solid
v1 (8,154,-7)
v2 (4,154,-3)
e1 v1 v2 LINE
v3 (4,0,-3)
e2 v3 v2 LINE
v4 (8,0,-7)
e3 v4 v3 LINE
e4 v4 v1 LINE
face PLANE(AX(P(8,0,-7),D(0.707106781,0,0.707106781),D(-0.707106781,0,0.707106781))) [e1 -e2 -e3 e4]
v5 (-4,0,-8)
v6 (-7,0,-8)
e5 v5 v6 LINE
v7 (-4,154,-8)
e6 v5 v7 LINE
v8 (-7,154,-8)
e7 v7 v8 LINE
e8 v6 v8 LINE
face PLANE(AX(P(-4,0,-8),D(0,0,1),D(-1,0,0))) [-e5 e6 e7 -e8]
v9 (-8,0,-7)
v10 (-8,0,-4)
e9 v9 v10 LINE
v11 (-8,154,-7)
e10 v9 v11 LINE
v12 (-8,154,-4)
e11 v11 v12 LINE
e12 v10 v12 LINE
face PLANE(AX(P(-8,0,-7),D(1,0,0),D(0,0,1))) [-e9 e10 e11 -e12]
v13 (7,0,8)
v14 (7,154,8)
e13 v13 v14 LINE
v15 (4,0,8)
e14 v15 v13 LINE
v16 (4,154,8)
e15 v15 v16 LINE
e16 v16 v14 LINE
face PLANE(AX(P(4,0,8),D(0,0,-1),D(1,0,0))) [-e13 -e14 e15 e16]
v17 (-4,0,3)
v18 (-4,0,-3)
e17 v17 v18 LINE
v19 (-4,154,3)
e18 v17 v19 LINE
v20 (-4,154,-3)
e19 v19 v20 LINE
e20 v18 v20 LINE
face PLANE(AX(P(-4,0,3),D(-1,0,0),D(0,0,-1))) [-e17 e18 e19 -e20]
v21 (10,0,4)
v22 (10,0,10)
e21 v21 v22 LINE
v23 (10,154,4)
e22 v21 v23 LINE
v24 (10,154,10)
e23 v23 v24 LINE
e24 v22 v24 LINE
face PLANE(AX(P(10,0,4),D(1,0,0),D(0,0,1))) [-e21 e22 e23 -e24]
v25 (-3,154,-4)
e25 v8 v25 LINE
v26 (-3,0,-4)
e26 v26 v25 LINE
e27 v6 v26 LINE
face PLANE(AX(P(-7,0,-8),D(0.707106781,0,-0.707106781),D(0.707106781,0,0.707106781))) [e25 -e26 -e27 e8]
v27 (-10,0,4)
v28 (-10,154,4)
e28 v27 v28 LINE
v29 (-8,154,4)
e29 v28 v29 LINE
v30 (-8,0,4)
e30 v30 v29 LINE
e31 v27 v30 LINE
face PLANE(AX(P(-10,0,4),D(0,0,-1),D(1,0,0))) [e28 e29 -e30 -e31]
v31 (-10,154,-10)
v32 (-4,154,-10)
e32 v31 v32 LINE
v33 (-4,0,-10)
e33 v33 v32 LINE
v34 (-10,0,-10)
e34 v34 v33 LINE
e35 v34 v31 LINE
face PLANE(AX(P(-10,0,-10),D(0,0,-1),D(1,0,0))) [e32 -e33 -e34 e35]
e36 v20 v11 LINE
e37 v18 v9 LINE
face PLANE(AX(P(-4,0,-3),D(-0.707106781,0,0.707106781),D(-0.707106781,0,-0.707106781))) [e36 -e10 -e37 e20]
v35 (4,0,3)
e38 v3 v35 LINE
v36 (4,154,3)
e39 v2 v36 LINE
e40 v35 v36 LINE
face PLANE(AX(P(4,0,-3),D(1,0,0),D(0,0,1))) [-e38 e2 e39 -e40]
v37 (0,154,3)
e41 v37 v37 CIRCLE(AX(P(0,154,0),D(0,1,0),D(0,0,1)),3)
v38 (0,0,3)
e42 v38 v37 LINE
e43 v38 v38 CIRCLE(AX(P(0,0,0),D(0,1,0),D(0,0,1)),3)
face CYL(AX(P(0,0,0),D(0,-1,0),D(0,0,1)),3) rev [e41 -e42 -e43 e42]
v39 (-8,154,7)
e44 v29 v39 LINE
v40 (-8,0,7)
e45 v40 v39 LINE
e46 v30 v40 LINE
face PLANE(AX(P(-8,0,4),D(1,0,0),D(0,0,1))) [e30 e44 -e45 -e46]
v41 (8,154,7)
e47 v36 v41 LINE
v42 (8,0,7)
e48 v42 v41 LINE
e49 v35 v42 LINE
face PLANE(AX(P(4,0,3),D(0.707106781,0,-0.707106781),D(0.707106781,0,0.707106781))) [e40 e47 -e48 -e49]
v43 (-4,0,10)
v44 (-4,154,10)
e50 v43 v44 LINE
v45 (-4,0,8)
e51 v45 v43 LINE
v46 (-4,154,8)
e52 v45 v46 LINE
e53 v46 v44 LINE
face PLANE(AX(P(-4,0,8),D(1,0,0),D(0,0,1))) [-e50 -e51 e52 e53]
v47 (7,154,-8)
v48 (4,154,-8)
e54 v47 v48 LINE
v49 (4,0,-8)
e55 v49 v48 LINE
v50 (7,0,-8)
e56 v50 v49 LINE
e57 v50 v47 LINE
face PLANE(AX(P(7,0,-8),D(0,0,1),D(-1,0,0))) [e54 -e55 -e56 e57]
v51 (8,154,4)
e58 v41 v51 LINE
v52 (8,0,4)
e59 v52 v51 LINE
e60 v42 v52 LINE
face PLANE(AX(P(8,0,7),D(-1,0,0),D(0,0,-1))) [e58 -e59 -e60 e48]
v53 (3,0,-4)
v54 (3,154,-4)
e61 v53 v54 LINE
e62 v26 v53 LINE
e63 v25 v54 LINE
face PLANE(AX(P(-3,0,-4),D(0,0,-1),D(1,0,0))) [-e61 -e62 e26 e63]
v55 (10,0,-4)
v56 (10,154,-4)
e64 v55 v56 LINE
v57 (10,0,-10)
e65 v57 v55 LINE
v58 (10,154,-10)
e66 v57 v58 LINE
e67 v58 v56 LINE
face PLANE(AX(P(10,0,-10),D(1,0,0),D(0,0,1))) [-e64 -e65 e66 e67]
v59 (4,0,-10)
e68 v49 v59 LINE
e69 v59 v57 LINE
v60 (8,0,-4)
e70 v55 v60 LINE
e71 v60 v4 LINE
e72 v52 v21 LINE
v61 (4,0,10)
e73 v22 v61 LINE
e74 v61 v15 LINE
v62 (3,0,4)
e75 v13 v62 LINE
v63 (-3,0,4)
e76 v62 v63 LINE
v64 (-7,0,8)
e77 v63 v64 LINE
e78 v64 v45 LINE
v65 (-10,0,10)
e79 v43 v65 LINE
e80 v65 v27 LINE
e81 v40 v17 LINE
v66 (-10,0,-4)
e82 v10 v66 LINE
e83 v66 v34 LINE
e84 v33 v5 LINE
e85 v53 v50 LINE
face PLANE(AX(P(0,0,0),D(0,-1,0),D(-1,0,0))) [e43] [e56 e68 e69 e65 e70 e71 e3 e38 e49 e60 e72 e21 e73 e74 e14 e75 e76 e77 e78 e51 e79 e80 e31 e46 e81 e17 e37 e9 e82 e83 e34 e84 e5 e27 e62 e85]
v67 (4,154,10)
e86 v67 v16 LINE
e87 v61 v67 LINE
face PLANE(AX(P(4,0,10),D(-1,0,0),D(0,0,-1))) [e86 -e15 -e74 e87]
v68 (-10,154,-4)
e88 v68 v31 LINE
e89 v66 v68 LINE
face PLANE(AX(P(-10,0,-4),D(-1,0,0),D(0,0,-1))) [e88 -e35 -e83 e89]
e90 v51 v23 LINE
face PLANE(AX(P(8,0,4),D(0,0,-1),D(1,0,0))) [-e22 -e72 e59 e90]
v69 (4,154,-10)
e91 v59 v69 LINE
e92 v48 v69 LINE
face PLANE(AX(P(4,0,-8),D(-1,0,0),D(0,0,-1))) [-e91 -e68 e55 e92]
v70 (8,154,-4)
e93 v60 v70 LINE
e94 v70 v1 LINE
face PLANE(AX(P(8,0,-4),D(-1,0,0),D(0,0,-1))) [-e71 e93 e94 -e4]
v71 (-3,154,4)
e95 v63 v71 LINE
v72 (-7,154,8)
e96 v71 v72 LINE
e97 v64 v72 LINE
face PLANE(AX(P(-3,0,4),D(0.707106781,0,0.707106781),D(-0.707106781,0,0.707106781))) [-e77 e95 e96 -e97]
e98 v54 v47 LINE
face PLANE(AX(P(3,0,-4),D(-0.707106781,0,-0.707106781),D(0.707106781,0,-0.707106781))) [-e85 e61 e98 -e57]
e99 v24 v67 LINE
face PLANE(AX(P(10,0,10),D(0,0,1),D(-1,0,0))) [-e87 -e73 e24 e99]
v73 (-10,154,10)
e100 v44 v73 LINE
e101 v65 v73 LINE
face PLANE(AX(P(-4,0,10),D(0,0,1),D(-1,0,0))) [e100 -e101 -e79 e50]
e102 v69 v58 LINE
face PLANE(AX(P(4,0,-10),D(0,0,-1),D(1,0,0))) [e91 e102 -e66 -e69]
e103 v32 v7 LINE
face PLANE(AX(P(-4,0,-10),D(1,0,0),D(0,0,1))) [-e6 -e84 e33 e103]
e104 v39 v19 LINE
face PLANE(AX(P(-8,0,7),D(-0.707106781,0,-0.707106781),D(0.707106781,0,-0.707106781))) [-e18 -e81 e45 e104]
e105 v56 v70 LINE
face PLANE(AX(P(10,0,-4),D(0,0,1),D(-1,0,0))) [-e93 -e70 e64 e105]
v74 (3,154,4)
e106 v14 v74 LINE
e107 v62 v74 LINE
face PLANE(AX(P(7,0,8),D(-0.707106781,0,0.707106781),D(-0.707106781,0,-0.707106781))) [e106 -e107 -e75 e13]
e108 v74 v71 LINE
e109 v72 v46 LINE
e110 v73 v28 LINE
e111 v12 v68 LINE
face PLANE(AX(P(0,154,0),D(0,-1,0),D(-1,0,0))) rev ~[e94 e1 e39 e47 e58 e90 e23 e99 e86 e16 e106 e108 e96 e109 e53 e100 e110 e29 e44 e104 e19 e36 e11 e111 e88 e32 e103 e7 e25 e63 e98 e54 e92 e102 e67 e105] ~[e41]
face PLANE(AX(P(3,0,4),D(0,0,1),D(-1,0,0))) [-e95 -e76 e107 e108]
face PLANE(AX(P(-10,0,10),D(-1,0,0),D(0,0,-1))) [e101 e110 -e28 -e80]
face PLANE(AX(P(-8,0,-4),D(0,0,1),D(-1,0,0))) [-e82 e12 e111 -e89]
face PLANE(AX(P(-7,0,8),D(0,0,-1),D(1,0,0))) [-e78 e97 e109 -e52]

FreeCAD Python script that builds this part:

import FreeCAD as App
import Part
import Sketcher

V = App.Vector

doc = App.newDocument("Part")
body = doc.addObject("PartDesign::Body", "Body")

# Sketch on XZ plane
sketch1 = body.newObject("Sketcher::SketchObject", "Sketch")
sketch1.AttachmentSupport = (doc.getObject("XZ_Plane"), [""])
sketch1.MapMode = "FlatFace"
sketch1.addGeometry([
    Part.LineSegment(V(-4, -8, 0), V(-4, -10, 0)),  # 0
    Part.LineSegment(V(-4, -10, 0), V(-10, -10, 0)),  # 1
    Part.LineSegment(V(-10, -10, 0), V(-10, -4, 0)),  # 2
    Part.LineSegment(V(-10, -4, 0), V(-8, -4, 0)),  # 3
    Part.LineSegment(V(-8, -4, 0), V(-8, -7, 0)),  # 4
    Part.LineSegment(V(-8, -7, 0), V(-4, -3, 0)),  # 5
    Part.LineSegment(V(-4, -3, 0), V(-4, 3, 0)),  # 6
    Part.LineSegment(V(-4, 3, 0), V(-8, 7, 0)),  # 7
    Part.LineSegment(V(-8, 7, 0), V(-8, 4, 0)),  # 8
    Part.LineSegment(V(-8, 4, 0), V(-10, 4, 0)),  # 9
    Part.LineSegment(V(-10, 4, 0), V(-10, 10, 0)),  # 10
    Part.LineSegment(V(-10, 10, 0), V(-4, 10, 0)),  # 11
    Part.LineSegment(V(-4, 10, 0), V(-4, 8, 0)),  # 12
    Part.LineSegment(V(-4, 8, 0), V(-7, 8, 0)),  # 13
    Part.LineSegment(V(-7, 8, 0), V(-3, 4, 0)),  # 14
    Part.LineSegment(V(-3, 4, 0), V(3, 4, 0)),  # 15
    Part.LineSegment(V(3, 4, 0), V(7, 8, 0)),  # 16
    Part.LineSegment(V(7, 8, 0), V(4, 8, 0)),  # 17
    Part.LineSegment(V(4, 8, 0), V(4, 10, 0)),  # 18
    Part.LineSegment(V(4, 10, 0), V(10, 10, 0)),  # 19
    Part.LineSegment(V(10, 10, 0), V(10, 4, 0)),  # 20
    Part.LineSegment(V(10, 4, 0), V(8, 4, 0)),  # 21
    Part.LineSegment(V(8, 4, 0), V(8, 7, 0)),  # 22
    Part.LineSegment(V(8, 7, 0), V(4, 3, 0)),  # 23
    Part.LineSegment(V(4, 3, 0), V(4, -3, 0)),  # 24
    Part.LineSegment(V(4, -3, 0), V(8, -7, 0)),  # 25
    Part.LineSegment(V(8, -7, 0), V(8, -4, 0)),  # 26
    Part.LineSegment(V(8, -4, 0), V(10, -4, 0)),  # 27
    Part.LineSegment(V(10, -4, 0), V(10, -10, 0)),  # 28
    Part.LineSegment(V(10, -10, 0), V(4, -10, 0)),  # 29
    Part.LineSegment(V(4, -10, 0), V(4, -8, 0)),  # 30
    Part.LineSegment(V(4, -8, 0), V(7, -8, 0)),  # 31
    Part.LineSegment(V(7, -8, 0), V(3, -4, 0)),  # 32
    Part.LineSegment(V(3, -4, 0), V(-3, -4, 0)),  # 33
    Part.LineSegment(V(-3, -4, 0), V(-7, -8, 0)),  # 34
    Part.LineSegment(V(-7, -8, 0), V(-4, -8, 0)),  # 35
    Part.Circle(V(0, 0, 0), V(0, 0, 1), 3),  # 36
], False)
sketch1.addConstraint([
    Sketcher.Constraint("Coincident", 0, 2, 1, 1),
    Sketcher.Constraint("Coincident", 1, 2, 2, 1),
    Sketcher.Constraint("Coincident", 2, 2, 3, 1),
    Sketcher.Constraint("Coincident", 3, 2, 4, 1),
    Sketcher.Constraint("Coincident", 4, 2, 5, 1),
    Sketcher.Constraint("Coincident", 5, 2, 6, 1),
    Sketcher.Constraint("Coincident", 6, 2, 7, 1),
    Sketcher.Constraint("Coincident", 7, 2, 8, 1),
    Sketcher.Constraint("Coincident", 8, 2, 9, 1),
    Sketcher.Constraint("Coincident", 9, 2, 10, 1),
    Sketcher.Constraint("Coincident", 10, 2, 11, 1),
    Sketcher.Constraint("Coincident", 11, 2, 12, 1),
    Sketcher.Constraint("Coincident", 12, 2, 13, 1),
    Sketcher.Constraint("Coincident", 13, 2, 14, 1),
    Sketcher.Constraint("Coincident", 14, 2, 15, 1),
    Sketcher.Constraint("Coincident", 15, 2, 16, 1),
    Sketcher.Constraint("Coincident", 16, 2, 17, 1),
    Sketcher.Constraint("Coincident", 17, 2, 18, 1),
    Sketcher.Constraint("Coincident", 18, 2, 19, 1),
    Sketcher.Constraint("Coincident", 19, 2, 20, 1),
    Sketcher.Constraint("Coincident", 20, 2, 21, 1),
    Sketcher.Constraint("Coincident", 21, 2, 22, 1),
    Sketcher.Constraint("Coincident", 22, 2, 23, 1),
    Sketcher.Constraint("Coincident", 23, 2, 24, 1),
    Sketcher.Constraint("Coincident", 24, 2, 25, 1),
    Sketcher.Constraint("Coincident", 25, 2, 26, 1),
    Sketcher.Constraint("Coincident", 26, 2, 27, 1),
    Sketcher.Constraint("Coincident", 27, 2, 28, 1),
    Sketcher.Constraint("Coincident", 28, 2, 29, 1),
    Sketcher.Constraint("Coincident", 29, 2, 30, 1),
    Sketcher.Constraint("Coincident", 30, 2, 31, 1),
    Sketcher.Constraint("Coincident", 31, 2, 32, 1),
    Sketcher.Constraint("Coincident", 32, 2, 33, 1),
    Sketcher.Constraint("Coincident", 33, 2, 34, 1),
    Sketcher.Constraint("Coincident", 34, 2, 35, 1),
    Sketcher.Constraint("Coincident", 35, 2, 0, 1),
    Sketcher.Constraint("Vertical", 0),
    Sketcher.Constraint("Horizontal", 1),
    Sketcher.Constraint("Vertical", 2),
    Sketcher.Constraint("Horizontal", 3),
    Sketcher.Constraint("Vertical", 4),
    Sketcher.Constraint("Vertical", 6),
    Sketcher.Constraint("Vertical", 8),
    Sketcher.Constraint("Horizontal", 9),
    Sketcher.Constraint("Vertical", 10),
    Sketcher.Constraint("Horizontal", 11),
    Sketcher.Constraint("Vertical", 12),
    Sketcher.Constraint("Horizontal", 13),
    Sketcher.Constraint("Horizontal", 15),
    Sketcher.Constraint("Horizontal", 17),
    Sketcher.Constraint("Vertical", 18),
    Sketcher.Constraint("Horizontal", 19),
    Sketcher.Constraint("Vertical", 20),
    Sketcher.Constraint("Horizontal", 21),
    Sketcher.Constraint("Vertical", 22),
    Sketcher.Constraint("Vertical", 24),
    Sketcher.Constraint("Vertical", 26),
    Sketcher.Constraint("Horizontal", 27),
    Sketcher.Constraint("Vertical", 28),
    Sketcher.Constraint("Horizontal", 29),
    Sketcher.Constraint("Vertical", 30),
    Sketcher.Constraint("Horizontal", 31),
    Sketcher.Constraint("Horizontal", 33),
    Sketcher.Constraint("Horizontal", 35),
    Sketcher.Constraint("Coincident", 36, 3, -1, 1),
    Sketcher.Constraint("Symmetric", 0, 2, 18, 2, -1, 1),
    Sketcher.Constraint("Symmetric", 2, 2, 20, 2, -1, 1),
    Sketcher.Constraint("Symmetric", 4, 2, 22, 2, -1, 1),
    Sketcher.Constraint("Symmetric", 5, 2, 23, 2, -1, 1),
    Sketcher.Constraint("Symmetric", 7, 2, 25, 2, -1, 1),
    Sketcher.Constraint("Symmetric", 9, 2, 27, 2, -1, 1),
    Sketcher.Constraint("Symmetric", 11, 2, 29, 2, -1, 1),
    Sketcher.Constraint("Symmetric", 13, 2, 31, 2, -1, 1),
    Sketcher.Constraint("Symmetric", 14, 2, 32, 2, -1, 1),
    Sketcher.Constraint("Symmetric", 16, 2, 34, 2, -1, 1),
    Sketcher.Constraint("Symmetric", 13, 2, 16, 2, -2),
    Sketcher.Constraint("Symmetric", 11, 2, 18, 2, -2),
    Sketcher.Constraint("Symmetric", 9, 2, 20, 2, -2),
    Sketcher.Constraint("Symmetric", 7, 2, 22, 2, -2),
    Sketcher.Constraint("Perpendicular", 5, 7),
    Sketcher.Constraint("Parallel", 7, 14),
    Sketcher.Constraint("Perpendicular", 14, 16),
    Sketcher.Constraint("Perpendicular", 23, 25),
    Sketcher.Constraint("Perpendicular", 32, 34),
    Sketcher.Constraint("Horizontal", 9, 2, 14, 2),
    Sketcher.Constraint("Horizontal", 6, 2, 23, 2),
    Sketcher.Constraint("Vertical", 0, 2, 5, 2),
    Sketcher.Constraint("Equal", 11, 15),
    Sketcher.Constraint("Equal", 27, 0),
    Sketcher.Constraint("Equal", 33, 2),
    Sketcher.Constraint("Equal", 35, 4),
    Sketcher.Constraint("Equal", 2, 6),
    Sketcher.Constraint("Diameter", 36, 6.0),
    Sketcher.Constraint("DistanceX", 1, 2, 1, 1, 6.0),
    Sketcher.Constraint("DistanceX", 3, 1, 3, 2, 2.0),
    Sketcher.Constraint("DistanceX", 13, 2, 13, 1, 3.0),
])
pad1 = body.newObject("PartDesign::Pad", "Pad")
pad1.Profile = sketch1
pad1.Length = 154
pad1.Reversed = True

doc.recompute()
